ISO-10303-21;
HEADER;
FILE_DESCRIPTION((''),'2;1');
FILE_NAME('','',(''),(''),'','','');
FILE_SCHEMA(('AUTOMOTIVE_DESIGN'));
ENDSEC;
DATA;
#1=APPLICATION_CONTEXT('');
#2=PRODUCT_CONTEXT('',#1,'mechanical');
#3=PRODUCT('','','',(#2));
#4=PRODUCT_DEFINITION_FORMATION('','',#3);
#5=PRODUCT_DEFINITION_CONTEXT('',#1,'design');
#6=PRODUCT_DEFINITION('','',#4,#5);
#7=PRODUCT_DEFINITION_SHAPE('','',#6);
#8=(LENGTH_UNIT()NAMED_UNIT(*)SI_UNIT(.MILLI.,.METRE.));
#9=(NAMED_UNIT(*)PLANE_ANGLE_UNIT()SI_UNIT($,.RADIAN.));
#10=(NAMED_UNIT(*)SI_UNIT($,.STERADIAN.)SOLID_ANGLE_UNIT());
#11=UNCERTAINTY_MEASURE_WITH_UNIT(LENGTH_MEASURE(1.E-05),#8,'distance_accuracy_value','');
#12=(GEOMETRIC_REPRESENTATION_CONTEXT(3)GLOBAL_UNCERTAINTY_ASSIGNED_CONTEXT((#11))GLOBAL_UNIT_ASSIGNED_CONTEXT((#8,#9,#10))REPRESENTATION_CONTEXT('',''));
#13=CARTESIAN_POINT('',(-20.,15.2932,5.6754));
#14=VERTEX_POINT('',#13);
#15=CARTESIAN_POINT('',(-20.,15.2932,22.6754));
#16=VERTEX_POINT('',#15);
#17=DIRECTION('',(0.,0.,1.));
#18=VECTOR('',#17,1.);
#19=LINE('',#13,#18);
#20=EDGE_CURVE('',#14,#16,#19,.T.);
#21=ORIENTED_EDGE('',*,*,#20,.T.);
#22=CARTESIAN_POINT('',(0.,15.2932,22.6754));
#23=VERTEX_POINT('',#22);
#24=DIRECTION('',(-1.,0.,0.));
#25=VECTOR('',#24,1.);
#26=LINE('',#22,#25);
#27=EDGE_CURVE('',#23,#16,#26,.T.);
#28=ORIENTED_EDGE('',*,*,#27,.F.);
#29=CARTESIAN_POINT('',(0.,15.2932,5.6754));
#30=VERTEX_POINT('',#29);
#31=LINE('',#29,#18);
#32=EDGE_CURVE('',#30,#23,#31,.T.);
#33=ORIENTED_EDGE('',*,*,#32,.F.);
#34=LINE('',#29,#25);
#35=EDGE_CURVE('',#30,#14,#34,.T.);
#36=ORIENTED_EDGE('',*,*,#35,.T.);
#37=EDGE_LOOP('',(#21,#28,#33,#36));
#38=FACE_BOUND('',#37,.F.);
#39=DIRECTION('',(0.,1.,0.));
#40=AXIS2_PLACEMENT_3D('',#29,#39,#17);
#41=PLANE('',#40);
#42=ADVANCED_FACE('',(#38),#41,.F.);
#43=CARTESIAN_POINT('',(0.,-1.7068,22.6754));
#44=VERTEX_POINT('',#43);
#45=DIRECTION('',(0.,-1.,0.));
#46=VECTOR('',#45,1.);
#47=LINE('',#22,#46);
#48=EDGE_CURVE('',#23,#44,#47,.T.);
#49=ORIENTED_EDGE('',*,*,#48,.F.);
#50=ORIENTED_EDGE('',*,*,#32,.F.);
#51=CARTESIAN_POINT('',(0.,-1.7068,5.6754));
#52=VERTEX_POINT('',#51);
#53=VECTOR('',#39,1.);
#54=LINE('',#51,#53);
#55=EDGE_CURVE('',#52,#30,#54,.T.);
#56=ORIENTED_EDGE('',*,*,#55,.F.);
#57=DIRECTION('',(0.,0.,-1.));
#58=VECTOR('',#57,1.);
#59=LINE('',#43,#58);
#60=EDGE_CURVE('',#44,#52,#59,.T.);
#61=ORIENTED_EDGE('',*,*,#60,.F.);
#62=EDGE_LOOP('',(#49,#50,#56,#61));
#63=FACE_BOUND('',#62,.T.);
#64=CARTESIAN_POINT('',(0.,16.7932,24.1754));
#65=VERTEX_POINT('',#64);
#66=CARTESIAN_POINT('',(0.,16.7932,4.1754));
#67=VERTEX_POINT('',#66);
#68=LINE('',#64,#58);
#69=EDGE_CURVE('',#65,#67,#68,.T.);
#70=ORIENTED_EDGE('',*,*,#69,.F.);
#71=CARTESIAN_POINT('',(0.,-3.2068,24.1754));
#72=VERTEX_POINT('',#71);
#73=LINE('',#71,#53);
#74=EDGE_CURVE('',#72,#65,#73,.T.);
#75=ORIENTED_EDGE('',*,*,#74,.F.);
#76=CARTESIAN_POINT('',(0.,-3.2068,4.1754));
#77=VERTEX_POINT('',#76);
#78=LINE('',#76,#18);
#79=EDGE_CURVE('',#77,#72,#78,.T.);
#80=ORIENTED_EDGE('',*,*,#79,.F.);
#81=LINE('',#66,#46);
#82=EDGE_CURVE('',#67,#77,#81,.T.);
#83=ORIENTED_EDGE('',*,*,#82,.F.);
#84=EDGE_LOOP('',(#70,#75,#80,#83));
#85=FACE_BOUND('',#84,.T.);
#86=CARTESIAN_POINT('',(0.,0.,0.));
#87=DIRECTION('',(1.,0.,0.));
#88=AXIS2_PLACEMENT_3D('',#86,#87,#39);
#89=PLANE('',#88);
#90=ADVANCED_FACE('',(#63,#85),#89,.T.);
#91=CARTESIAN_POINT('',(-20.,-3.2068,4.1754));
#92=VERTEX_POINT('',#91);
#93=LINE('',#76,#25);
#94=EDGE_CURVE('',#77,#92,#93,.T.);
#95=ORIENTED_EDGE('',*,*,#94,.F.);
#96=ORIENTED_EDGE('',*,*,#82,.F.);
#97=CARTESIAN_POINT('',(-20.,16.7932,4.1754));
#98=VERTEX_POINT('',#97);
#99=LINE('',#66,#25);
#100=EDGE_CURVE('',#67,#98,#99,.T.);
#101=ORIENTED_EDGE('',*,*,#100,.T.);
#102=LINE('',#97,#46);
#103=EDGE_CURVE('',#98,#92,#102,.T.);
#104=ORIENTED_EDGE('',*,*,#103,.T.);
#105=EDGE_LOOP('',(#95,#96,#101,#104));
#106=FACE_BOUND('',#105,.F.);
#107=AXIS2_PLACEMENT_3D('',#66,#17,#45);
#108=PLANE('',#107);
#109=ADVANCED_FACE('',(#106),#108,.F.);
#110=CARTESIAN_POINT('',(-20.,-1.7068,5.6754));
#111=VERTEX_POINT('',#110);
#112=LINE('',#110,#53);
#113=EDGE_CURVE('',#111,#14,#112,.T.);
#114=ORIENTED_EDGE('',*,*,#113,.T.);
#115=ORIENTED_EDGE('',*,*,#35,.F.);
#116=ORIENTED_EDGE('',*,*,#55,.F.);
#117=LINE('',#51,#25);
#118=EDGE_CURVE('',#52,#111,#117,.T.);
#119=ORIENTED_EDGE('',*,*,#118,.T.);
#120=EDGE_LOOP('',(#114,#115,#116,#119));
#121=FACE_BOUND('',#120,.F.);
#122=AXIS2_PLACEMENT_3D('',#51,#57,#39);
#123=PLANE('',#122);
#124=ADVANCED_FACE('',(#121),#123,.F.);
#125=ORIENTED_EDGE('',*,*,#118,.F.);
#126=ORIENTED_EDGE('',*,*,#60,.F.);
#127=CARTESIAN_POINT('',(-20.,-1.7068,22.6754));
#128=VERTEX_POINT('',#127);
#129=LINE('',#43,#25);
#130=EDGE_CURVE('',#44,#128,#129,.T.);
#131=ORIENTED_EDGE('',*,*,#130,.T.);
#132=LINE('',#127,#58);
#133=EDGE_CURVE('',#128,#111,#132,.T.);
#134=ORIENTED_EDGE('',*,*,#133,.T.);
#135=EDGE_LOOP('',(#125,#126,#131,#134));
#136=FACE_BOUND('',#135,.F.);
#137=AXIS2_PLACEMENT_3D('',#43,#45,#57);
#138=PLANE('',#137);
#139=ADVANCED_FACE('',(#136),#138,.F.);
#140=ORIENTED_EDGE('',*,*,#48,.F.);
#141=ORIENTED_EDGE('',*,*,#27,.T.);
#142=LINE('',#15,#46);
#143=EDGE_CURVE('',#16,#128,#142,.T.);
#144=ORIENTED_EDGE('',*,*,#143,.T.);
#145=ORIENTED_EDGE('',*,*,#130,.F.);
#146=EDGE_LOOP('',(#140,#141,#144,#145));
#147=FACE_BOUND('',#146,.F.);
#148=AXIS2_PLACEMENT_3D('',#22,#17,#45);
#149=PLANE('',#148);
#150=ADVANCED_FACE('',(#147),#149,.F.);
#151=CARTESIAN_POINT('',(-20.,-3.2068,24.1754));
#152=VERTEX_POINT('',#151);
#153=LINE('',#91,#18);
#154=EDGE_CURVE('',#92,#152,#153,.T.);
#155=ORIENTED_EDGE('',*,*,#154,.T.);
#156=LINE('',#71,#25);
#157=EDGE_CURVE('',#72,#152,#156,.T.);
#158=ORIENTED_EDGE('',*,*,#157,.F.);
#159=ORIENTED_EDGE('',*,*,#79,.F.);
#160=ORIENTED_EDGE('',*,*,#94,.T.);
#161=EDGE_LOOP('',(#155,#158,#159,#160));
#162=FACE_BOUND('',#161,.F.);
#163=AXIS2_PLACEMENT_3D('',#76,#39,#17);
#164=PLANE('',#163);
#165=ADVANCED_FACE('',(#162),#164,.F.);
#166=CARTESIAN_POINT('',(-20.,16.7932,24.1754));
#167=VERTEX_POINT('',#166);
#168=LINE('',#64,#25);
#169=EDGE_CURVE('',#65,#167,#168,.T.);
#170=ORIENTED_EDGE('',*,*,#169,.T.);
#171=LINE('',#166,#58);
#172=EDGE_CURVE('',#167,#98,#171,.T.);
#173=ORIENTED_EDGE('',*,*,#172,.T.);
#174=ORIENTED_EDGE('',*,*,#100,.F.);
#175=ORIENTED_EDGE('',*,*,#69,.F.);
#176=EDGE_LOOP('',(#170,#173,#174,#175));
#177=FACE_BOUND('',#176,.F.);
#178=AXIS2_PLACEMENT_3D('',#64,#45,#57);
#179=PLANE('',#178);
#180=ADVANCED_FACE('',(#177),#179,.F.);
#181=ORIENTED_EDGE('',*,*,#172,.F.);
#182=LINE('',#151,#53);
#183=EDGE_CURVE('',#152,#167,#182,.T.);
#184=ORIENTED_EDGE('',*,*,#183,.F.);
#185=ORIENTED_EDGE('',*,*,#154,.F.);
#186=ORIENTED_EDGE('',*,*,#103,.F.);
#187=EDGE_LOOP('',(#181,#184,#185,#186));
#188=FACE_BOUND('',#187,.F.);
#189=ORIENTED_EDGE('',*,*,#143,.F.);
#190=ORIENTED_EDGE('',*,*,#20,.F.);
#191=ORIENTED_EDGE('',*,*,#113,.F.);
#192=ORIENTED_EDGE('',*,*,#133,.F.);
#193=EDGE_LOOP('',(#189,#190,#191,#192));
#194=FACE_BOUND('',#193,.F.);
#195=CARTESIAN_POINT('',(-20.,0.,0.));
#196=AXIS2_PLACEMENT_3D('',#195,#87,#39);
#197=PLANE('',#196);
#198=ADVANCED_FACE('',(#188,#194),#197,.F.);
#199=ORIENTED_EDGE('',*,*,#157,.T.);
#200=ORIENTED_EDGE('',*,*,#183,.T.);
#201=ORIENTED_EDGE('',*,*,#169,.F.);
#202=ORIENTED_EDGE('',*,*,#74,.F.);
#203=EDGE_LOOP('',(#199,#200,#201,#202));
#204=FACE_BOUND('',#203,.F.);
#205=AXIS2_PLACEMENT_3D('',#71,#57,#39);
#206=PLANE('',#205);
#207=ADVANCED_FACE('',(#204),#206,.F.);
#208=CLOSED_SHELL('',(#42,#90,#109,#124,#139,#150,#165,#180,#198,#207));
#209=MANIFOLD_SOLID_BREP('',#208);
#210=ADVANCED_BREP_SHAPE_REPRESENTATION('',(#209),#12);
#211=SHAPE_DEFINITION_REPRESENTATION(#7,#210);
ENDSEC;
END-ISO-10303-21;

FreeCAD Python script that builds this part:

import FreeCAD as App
import Part
import Sketcher

V = App.Vector


def add_polygon(sketch, points):
    """Adds a closed chain of lines whose ends are joined by coincident constraints."""
    first, n = sketch.GeometryCount, len(points)
    for a, b in zip(points, points[1:] + points[:1]):
        sketch.addGeometry(Part.LineSegment(App.Vector(*a, 0), App.Vector(*b, 0)), False)
    for i in range(n):
        sketch.addConstraint(Sketcher.Constraint("Coincident", first + i, 2, first + (i + 1) % n, 1))

doc = App.newDocument("Part")
body = doc.addObject("PartDesign::Body", "Body")

# Sketch on YZ plane
sketch1 = doc.addObject("Sketcher::SketchObject", "Sketch")
body.addObject(sketch1)
sketch1.AttachmentSupport = (doc.YZ_Plane, [""])
sketch1.MapMode = "FlatFace"
add_polygon(sketch1, [(-3, 4), (17, 4), (17, 24), (-3, 24)])  # lines 0-3
add_polygon(sketch1, [(15, 6), (-2, 6), (-2, 23), (15, 23)])  # lines 4-7
sketch1.addConstraint(Sketcher.Constraint("Horizontal", 0))
sketch1.addConstraint(Sketcher.Constraint("Vertical", 1))
sketch1.addConstraint(Sketcher.Constraint("Horizontal", 2))
sketch1.addConstraint(Sketcher.Constraint("Vertical", 3))
sketch1.addConstraint(Sketcher.Constraint("Horizontal", 4))
sketch1.addConstraint(Sketcher.Constraint("Vertical", 5))
sketch1.addConstraint(Sketcher.Constraint("Horizontal", 6))
sketch1.addConstraint(Sketcher.Constraint("Vertical", 7))
sketch1.addConstraint(Sketcher.Constraint("Equal", 2, 1))
sketch1.addConstraint(Sketcher.Constraint("Equal", 6, 5))
sketch1.addConstraint(Sketcher.Constraint("DistanceX", 0, 1, 0, 2, 20.0))
sketch1.addConstraint(Sketcher.Constraint("DistanceX", 3, 2, 4, 2, 1.5))
sketch1.addConstraint(Sketcher.Constraint("DistanceY", 3, 2, 4, 2, 1.5))
sketch1.addConstraint(Sketcher.Constraint("DistanceY", 5, 2, 2, 2, 1.5))
sketch1.addConstraint(Sketcher.Constraint("DistanceX", -1, 1, 0, 2, 16.7932))
sketch1.addConstraint(Sketcher.Constraint("DistanceY", -1, 1, 0, 2, 4.1754))
pad1 = doc.addObject("PartDesign::Pad", "Pad")
body.addObject(pad1)
pad1.Profile = sketch1
pad1.Length = 20
pad1.Reversed = True

doc.recompute()
